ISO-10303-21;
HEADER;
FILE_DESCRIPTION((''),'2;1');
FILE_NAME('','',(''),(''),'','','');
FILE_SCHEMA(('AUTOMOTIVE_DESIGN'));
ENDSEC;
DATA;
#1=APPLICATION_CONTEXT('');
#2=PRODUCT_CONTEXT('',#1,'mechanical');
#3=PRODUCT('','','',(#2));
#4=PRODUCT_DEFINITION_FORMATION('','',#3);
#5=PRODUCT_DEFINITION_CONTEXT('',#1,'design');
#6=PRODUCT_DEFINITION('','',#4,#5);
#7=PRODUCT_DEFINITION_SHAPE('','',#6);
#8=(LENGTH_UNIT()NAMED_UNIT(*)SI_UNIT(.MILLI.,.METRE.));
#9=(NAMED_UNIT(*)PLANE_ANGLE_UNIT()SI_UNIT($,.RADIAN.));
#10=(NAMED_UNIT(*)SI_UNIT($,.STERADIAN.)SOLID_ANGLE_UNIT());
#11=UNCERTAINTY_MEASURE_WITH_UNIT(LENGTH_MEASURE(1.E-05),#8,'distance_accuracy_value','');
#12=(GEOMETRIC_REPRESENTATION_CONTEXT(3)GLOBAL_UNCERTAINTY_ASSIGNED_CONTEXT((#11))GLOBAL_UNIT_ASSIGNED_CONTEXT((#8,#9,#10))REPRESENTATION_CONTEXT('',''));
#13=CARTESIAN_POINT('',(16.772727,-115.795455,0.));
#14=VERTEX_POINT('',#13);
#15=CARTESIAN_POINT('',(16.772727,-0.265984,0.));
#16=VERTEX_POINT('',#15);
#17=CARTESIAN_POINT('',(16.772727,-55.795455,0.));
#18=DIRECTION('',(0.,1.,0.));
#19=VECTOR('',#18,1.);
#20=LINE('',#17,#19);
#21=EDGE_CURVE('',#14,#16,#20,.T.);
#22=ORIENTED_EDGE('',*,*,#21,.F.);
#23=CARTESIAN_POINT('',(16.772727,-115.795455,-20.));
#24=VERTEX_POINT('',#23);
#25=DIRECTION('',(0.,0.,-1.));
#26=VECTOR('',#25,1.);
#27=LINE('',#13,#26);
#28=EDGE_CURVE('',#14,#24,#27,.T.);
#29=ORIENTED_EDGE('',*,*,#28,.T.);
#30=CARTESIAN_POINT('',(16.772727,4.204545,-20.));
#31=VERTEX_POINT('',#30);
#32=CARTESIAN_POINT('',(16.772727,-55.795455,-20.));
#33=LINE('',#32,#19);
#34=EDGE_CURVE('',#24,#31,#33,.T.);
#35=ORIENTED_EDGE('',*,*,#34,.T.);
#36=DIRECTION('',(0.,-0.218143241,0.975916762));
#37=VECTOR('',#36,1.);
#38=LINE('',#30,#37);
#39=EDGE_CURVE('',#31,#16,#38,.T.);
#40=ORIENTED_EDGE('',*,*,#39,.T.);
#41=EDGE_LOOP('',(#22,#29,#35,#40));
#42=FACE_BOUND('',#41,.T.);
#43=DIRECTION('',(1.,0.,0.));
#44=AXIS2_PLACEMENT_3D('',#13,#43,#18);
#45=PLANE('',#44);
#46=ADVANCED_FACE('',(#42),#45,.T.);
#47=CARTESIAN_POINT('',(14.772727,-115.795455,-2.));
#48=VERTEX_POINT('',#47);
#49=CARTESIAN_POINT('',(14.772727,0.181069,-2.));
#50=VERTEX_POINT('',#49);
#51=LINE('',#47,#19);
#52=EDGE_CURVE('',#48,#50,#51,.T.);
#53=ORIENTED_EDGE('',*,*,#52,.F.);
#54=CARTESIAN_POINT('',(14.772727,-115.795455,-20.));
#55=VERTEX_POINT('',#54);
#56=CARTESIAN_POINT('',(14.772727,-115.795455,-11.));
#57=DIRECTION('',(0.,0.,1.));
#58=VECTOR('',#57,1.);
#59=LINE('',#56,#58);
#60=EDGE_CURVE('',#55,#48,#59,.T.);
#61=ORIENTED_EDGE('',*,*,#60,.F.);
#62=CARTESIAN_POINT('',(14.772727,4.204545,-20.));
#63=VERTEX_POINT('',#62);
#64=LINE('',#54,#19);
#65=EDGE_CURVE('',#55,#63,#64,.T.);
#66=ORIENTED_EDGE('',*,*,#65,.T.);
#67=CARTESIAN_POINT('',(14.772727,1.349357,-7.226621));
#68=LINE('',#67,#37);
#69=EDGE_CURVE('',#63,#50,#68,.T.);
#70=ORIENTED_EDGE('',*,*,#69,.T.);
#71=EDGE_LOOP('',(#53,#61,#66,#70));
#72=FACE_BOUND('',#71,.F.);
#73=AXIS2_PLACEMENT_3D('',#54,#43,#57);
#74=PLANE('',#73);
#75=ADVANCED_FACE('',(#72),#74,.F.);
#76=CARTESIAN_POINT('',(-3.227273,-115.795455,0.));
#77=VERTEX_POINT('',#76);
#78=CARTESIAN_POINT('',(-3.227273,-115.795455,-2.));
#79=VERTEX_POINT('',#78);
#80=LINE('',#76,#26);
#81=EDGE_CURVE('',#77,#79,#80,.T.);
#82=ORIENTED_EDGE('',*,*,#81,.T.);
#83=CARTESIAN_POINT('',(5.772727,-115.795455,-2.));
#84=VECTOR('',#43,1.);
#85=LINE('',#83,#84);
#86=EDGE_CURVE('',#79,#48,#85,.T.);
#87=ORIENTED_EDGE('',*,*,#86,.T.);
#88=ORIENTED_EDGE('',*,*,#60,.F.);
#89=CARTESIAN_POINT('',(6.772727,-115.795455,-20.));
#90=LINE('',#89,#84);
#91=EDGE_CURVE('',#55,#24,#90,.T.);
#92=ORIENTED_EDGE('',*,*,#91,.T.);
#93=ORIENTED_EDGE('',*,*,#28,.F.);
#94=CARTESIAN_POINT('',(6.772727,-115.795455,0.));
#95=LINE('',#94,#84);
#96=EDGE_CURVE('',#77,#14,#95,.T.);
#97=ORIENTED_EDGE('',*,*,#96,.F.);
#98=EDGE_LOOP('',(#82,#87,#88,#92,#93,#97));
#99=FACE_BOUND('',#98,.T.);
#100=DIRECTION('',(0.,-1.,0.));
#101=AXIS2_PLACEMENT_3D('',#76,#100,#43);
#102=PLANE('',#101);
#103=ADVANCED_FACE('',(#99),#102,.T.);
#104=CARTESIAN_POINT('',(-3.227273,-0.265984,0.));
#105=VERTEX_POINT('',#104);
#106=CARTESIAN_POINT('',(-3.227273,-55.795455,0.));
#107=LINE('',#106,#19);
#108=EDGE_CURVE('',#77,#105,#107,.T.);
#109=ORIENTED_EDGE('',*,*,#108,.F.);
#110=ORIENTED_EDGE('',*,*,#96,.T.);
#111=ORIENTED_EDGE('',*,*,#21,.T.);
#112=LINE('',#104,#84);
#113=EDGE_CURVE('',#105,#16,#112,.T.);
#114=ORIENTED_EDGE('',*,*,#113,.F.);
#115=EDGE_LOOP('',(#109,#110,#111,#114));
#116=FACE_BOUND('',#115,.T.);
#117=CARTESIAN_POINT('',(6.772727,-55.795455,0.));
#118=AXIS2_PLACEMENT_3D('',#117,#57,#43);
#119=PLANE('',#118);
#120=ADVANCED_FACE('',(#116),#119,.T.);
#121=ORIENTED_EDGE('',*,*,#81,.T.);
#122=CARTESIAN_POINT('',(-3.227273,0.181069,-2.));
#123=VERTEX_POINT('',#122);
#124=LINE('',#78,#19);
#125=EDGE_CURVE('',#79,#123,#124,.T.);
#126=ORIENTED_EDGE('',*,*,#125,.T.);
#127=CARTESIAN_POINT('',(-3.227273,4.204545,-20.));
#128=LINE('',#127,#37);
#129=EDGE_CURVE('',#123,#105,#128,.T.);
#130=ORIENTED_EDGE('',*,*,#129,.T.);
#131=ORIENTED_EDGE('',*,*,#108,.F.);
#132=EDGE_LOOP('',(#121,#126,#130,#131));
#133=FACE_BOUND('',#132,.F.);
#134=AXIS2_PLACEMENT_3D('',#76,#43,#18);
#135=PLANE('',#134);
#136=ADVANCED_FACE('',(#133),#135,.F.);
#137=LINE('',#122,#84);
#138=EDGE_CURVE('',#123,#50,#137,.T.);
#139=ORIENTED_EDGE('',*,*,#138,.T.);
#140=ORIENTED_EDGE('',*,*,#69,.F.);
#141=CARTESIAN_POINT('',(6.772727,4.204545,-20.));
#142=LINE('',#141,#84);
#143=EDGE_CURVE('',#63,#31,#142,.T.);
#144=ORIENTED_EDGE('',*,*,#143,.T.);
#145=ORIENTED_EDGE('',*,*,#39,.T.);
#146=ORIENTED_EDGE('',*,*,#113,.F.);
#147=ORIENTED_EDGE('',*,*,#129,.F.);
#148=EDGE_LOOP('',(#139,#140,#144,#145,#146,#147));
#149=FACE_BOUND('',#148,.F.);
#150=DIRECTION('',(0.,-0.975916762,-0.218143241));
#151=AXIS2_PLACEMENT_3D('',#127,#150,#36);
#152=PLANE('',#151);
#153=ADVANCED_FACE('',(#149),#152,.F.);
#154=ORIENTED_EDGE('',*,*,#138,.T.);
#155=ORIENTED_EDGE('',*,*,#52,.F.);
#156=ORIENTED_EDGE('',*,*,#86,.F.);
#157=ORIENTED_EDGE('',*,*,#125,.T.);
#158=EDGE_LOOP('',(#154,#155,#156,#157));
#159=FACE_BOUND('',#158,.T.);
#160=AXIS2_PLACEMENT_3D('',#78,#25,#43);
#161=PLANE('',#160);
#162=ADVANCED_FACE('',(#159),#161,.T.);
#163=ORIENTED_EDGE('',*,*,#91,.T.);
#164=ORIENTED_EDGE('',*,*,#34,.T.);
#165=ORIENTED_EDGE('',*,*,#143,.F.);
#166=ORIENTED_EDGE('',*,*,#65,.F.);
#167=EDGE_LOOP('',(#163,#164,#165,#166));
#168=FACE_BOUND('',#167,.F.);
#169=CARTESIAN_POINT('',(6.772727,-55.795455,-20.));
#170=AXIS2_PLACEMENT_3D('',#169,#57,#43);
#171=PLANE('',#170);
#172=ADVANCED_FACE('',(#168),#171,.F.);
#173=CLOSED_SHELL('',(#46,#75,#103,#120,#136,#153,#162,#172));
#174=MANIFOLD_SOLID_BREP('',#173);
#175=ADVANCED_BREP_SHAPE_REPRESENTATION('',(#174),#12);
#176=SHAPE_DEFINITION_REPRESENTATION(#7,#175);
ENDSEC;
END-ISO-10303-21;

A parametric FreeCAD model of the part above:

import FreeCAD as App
import Part
import Sketcher
from FreeCAD import Vector
Q = App.Units.Quantity


def add_polygon(sketch, points):
    """Adds a closed chain of lines whose ends are joined by coincident constraints."""
    first, n = sketch.GeometryCount, len(points)
    for a, b in zip(points, points[1:] + points[:1]):
        sketch.addGeometry(Part.LineSegment(App.Vector(*a, 0), App.Vector(*b, 0)), False)
    for i in range(n):
        sketch.addConstraint(Sketcher.Constraint("Coincident", first + i, 2, first + (i + 1) % n, 1))

doc = App.newDocument("Part")
body = doc.addObject("PartDesign::Body", "Body")

# Sketch on XY plane
sketch1 = body.newObject("Sketcher::SketchObject", "Sketch")
sketch1.AttachmentSupport = (doc.getObject("XY_Plane"), [""])
sketch1.MapMode = "FlatFace"
add_polygon(sketch1, [(-3, 4), (-3, -116), (17, -116), (17, 4)])  # lines 0-3
sketch1.addConstraint([
    Sketcher.Constraint("Vertical", 0),
    Sketcher.Constraint("Horizontal", 1),
    Sketcher.Constraint("Vertical", 2),
    Sketcher.Constraint("Horizontal", 3),
    Sketcher.Constraint("DistanceX", 1, 1, 1, 2, 20.0),
    Sketcher.Constraint("DistanceY", 0, 2, 0, 1, 120.0),
    Sketcher.Constraint("DistanceX", 0, 2, -1, 1, 3.227273),
    Sketcher.Constraint("DistanceY", 0, 2, -1, 1, 115.795455),
])
pad1 = body.newObject("PartDesign::Pad", "Pad")
pad1.Profile = sketch1
pad1.Length = 20
pad1.Reversed = True

# Sketch on YZ plane
sketch2 = body.newObject("Sketcher::SketchObject", "Sketch001")
sketch2.AttachmentSupport = (doc.getObject("YZ_Plane"), [""])
sketch2.MapMode = "FlatFace"
sketch2.AttachmentOffset = App.Placement(Vector(0, 0, -3.227273), App.Rotation())
add_polygon(sketch2, [(4.2, -20), (-0.3, 0), (4.2, 0)])  # lines 0-2
sketch2.addConstraint([
    Sketcher.Constraint("Horizontal", 1),
    Sketcher.Constraint("Vertical", 2),
    Sketcher.Constraint("PointOnObject", 0, 2, -1),
    Sketcher.Constraint("DistanceY", 2, 2, 2, 1, 20.0),
    Sketcher.Constraint("Angle", 0, Q("102.6 deg")),
    Sketcher.Constraint("DistanceX", 0, 2, -1, 1, 0.265984),
])
pocket1 = body.newObject("PartDesign::Pocket", "Pocket")
pocket1.Profile = sketch2
pocket1.Length = 20
pocket1.Reversed = True

# Sketch on XZ plane
sketch3 = body.newObject("Sketcher::SketchObject", "Sketch002")
sketch3.AttachmentSupport = (doc.getObject("XZ_Plane"), [""])
sketch3.MapMode = "FlatFace"
sketch3.AttachmentOffset = App.Placement(Vector(0, 0, 115.795455), App.Rotation())
add_polygon(sketch3, [(-3, -2), (-3, -20), (15, -20), (15, -2)])  # lines 0-3
sketch3.addConstraint([
    Sketcher.Constraint("Vertical", 0),
    Sketcher.Constraint("Horizontal", 1),
    Sketcher.Constraint("Vertical", 2),
    Sketcher.Constraint("Horizontal", 3),
    Sketcher.Constraint("Equal", 3, 0),
    Sketcher.Constraint("DistanceX", 1, 1, 1, 2, 18.0),
    Sketcher.Constraint("DistanceY", 0, 2, -1, 1, 20.0),
    Sketcher.Constraint("DistanceX", 0, 2, -1, 1, 3.227273),
])
pocket2 = body.newObject("PartDesign::Pocket", "Pocket001")
pocket2.Profile = sketch3
pocket2.Length = 120

doc.recompute()
